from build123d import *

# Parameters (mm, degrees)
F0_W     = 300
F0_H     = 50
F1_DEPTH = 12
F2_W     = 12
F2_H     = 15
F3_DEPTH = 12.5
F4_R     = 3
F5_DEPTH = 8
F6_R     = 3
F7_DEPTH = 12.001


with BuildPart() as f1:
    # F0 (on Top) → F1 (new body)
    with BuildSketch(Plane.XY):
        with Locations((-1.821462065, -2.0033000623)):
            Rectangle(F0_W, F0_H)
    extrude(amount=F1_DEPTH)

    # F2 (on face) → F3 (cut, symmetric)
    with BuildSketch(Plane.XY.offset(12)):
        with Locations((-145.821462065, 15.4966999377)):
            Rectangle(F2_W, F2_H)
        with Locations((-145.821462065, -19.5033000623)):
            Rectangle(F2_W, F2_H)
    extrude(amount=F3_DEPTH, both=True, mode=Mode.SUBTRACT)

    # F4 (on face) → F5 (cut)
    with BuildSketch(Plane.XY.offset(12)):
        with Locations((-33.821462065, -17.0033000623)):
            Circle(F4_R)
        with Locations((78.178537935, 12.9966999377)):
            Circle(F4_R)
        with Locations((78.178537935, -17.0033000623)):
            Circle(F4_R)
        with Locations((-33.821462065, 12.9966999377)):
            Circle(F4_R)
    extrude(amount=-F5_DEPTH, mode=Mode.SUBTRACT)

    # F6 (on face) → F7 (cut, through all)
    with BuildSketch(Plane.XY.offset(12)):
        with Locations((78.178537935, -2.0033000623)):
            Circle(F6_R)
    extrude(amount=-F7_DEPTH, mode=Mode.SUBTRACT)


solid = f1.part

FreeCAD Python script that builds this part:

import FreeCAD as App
import Part
import Sketcher
from FreeCAD import Vector
Q = App.Units.Quantity

doc = App.newDocument("Part")
body = doc.addObject("PartDesign::Body", "Body")

sketch1 = doc.addObject("Sketcher::SketchObject", "Sketch")
body.addObject(sketch1)
sketch1.AttachmentSupport = (doc.XY_Plane, [""])
sketch1.MapMode = "FlatFace"
sketch1.addGeometry([
    Part.LineSegment(Vector(-152, 23, 0), Vector(-152, -27, 0)),
    Part.LineSegment(Vector(-152, -27, 0), Vector(148, -27, 0)),
    Part.LineSegment(Vector(148, -27, 0), Vector(148, 23, 0)),
    Part.LineSegment(Vector(148, 23, 0), Vector(-152, 23, 0)),
], False)
sketch1.addConstraint([
    Sketcher.Constraint("Coincident", 0, 2, 1, 1),
    Sketcher.Constraint("Coincident", 1, 2, 2, 1),
    Sketcher.Constraint("Coincident", 2, 2, 3, 1),
    Sketcher.Constraint("Coincident", 3, 2, 0, 1),
    Sketcher.Constraint("Vertical", 0),
    Sketcher.Constraint("Horizontal", 1),
    Sketcher.Constraint("Vertical", 2),
    Sketcher.Constraint("Horizontal", 3),
    Sketcher.Constraint("DistanceX", 1, 1, 1, 2, Q("300 mm")),
    Sketcher.Constraint("DistanceY", 0, 2, 0, 1, Q("50 mm")),
    Sketcher.Constraint("DistanceY", 0, 2, -1, 1, Q("27.0033 mm")),
    Sketcher.Constraint("DistanceX", 0, 2, -1, 1, Q("151.821462 mm")),
])
pad1 = doc.addObject("PartDesign::Pad", "Pad")
body.addObject(pad1)
pad1.Profile = sketch1
pad1.Length = 12

sketch2 = doc.addObject("Sketcher::SketchObject", "Sketch001")
body.addObject(sketch2)
sketch2.AttachmentSupport = (doc.XY_Plane, [""])
sketch2.MapMode = "FlatFace"
sketch2.AttachmentOffset = App.Placement(Vector(0, 0, 12), App.Rotation())
sketch2.addGeometry([
    Part.LineSegment(Vector(-152, 23, 0), Vector(-152, 8, 0)),
    Part.LineSegment(Vector(-152, 8, 0), Vector(-140, 8, 0)),
    Part.LineSegment(Vector(-140, 8, 0), Vector(-140, 23, 0)),
    Part.LineSegment(Vector(-140, 23, 0), Vector(-152, 23, 0)),
    Part.LineSegment(Vector(-152, -12, 0), Vector(-152, -27, 0)),
    Part.LineSegment(Vector(-152, -27, 0), Vector(-140, -27, 0)),
    Part.LineSegment(Vector(-140, -27, 0), Vector(-140, -12, 0)),
    Part.LineSegment(Vector(-140, -12, 0), Vector(-152, -12, 0)),
], False)
sketch2.addConstraint([
    Sketcher.Constraint("Coincident", 0, 2, 1, 1),
    Sketcher.Constraint("Coincident", 1, 2, 2, 1),
    Sketcher.Constraint("Coincident", 2, 2, 3, 1),
    Sketcher.Constraint("Coincident", 3, 2, 0, 1),
    Sketcher.Constraint("Coincident", 4, 2, 5, 1),
    Sketcher.Constraint("Coincident", 5, 2, 6, 1),
    Sketcher.Constraint("Coincident", 6, 2, 7, 1),
    Sketcher.Constraint("Coincident", 7, 2, 4, 1),
    Sketcher.Constraint("Vertical", 0),
    Sketcher.Constraint("Horizontal", 1),
    Sketcher.Constraint("Vertical", 2),
    Sketcher.Constraint("Horizontal", 3),
    Sketcher.Constraint("Vertical", 4),
    Sketcher.Constraint("Horizontal", 5),
    Sketcher.Constraint("Vertical", 6),
    Sketcher.Constraint("Horizontal", 7),
    Sketcher.Constraint("Vertical", 3, 2, 4, 2),
    Sketcher.Constraint("Vertical", 2, 2, 5, 2),
    Sketcher.Constraint("Equal", 2, 4),
    Sketcher.Constraint("DistanceX", 1, 1, 1, 2, Q("12 mm")),
    Sketcher.Constraint("DistanceY", 0, 2, 0, 1, Q("15 mm")),
    Sketcher.Constraint("DistanceY", 4, 2, 0, 2, Q("35 mm")),
    Sketcher.Constraint("DistanceY", -1, 1, 0, 2, Q("7.9967 mm")),
    Sketcher.Constraint("DistanceX", 0, 2, -1, 1, Q("151.821462 mm")),
])
pocket1 = doc.addObject("PartDesign::Pocket", "Pocket")
body.addObject(pocket1)
pocket1.Profile = sketch2
pocket1.Length = 25
pocket1.Midplane = True

sketch3 = doc.addObject("Sketcher::SketchObject", "Sketch002")
body.addObject(sketch3)
sketch3.AttachmentSupport = (doc.XY_Plane, [""])
sketch3.MapMode = "FlatFace"
sketch3.AttachmentOffset = App.Placement(Vector(0, 0, 12), App.Rotation())
sketch3.addGeometry([
    Part.Circle(Vector(-33.8, -17, 0), Vector(0, 0, 1), 3),
    Part.Circle(Vector(78.2, 13, 0), Vector(0, 0, 1), 3),
    Part.Circle(Vector(78.2, -17, 0), Vector(0, 0, 1), 3),
    Part.Circle(Vector(-33.8, 13, 0), Vector(0, 0, 1), 3),
], False)
sketch3.addConstraint([
    Sketcher.Constraint("Equal", 0, 1),
    Sketcher.Constraint("Equal", 1, 2),
    Sketcher.Constraint("Equal", 2, 3),
    Sketcher.Constraint("Horizontal", 0, 3, 2, 3),
    Sketcher.Constraint("Horizontal", 1, 3, 3, 3),
    Sketcher.Constraint("Vertical", 1, 3, 2, 3),
    Sketcher.Constraint("Vertical", 0, 3, 3, 3),
    Sketcher.Constraint("Diameter", 0, Q("6 mm")),
    Sketcher.Constraint("DistanceX", 0, 3, 1, 3, Q("112 mm")),
    Sketcher.Constraint("DistanceY", 0, 3, 1, 3, Q("30 mm")),
    Sketcher.Constraint("DistanceY", 0, 3, -1, 1, Q("17.0033 mm")),
    Sketcher.Constraint("DistanceX", 0, 3, -1, 1, Q("33.821462 mm")),
])
pocket2 = doc.addObject("PartDesign::Pocket", "Pocket001")
body.addObject(pocket2)
pocket2.Profile = sketch3
pocket2.Length = 8

sketch4 = doc.addObject("Sketcher::SketchObject", "Sketch003")
body.addObject(sketch4)
sketch4.AttachmentSupport = (doc.XY_Plane, [""])
sketch4.MapMode = "FlatFace"
sketch4.AttachmentOffset = App.Placement(Vector(0, 0, 12), App.Rotation())
sketch4.addGeometry(Part.Circle(Vector(78.2, -2, 0), Vector(0, 0, 1), 3), False)
sketch4.addConstraint([
    Sketcher.Constraint("Diameter", 0, Q("6 mm")),
    Sketcher.Constraint("DistanceY", 0, 3, -1, 1, Q("2.0033 mm")),
    Sketcher.Constraint("DistanceX", -1, 1, 0, 3, Q("78.178538 mm")),
])
pocket3 = doc.addObject("PartDesign::Pocket", "Pocket002")
body.addObject(pocket3)
pocket3.Profile = sketch4
pocket3.Type = "ThroughAll"

doc.recompute()
